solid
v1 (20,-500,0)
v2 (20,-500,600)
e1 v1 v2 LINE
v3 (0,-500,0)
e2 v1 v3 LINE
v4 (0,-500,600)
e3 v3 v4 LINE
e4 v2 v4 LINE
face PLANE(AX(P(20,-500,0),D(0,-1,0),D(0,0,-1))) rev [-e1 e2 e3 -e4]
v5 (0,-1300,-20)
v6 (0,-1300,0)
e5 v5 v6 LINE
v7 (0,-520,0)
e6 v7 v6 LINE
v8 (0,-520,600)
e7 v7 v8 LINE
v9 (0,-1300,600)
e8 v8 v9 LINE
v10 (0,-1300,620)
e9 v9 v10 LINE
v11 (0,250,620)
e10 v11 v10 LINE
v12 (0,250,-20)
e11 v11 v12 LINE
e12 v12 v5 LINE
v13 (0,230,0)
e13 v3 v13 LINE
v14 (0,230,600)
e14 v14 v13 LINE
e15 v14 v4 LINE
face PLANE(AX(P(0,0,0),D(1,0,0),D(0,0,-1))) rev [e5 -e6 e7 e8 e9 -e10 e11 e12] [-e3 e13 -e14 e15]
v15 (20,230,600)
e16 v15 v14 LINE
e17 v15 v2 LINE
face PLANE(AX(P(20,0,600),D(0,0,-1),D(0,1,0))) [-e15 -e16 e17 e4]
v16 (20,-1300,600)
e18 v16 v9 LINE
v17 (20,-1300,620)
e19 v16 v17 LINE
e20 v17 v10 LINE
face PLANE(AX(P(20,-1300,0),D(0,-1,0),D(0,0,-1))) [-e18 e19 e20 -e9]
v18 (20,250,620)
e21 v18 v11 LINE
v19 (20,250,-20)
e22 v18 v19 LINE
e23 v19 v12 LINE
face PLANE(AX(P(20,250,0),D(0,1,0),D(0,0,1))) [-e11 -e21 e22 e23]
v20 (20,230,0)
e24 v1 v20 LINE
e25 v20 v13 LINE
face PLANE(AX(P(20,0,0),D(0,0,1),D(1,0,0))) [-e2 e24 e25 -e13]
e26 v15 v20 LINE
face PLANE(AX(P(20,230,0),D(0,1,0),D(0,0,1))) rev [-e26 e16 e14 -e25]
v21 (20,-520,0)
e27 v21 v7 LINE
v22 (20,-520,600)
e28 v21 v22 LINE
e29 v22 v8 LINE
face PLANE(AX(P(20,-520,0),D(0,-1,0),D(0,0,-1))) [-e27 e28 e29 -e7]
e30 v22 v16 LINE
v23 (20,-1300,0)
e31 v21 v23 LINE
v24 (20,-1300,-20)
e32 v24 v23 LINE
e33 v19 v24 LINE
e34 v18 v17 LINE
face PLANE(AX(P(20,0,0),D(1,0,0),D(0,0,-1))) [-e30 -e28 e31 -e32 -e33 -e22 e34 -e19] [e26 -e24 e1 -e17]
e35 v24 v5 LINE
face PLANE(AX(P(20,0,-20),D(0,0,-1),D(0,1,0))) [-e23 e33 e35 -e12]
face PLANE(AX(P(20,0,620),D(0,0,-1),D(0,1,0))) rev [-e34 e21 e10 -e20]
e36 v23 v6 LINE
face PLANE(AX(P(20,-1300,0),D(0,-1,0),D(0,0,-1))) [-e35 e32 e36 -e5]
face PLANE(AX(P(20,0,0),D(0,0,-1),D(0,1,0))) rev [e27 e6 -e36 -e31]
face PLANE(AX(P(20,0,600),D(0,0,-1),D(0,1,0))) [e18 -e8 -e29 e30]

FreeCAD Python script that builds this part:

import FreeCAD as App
import Part
import Sketcher

V = App.Vector


def add_polygon(sketch, points):
    """Adds a closed chain of lines whose ends are joined by coincident constraints."""
    first, n = sketch.GeometryCount, len(points)
    for a, b in zip(points, points[1:] + points[:1]):
        sketch.addGeometry(Part.LineSegment(App.Vector(*a, 0), App.Vector(*b, 0)), False)
    for i in range(n):
        sketch.addConstraint(Sketcher.Constraint("Coincident", first + i, 2, first + (i + 1) % n, 1))

doc = App.newDocument("Part")
params = doc.addObject("Spreadsheet::Sheet", "Params")
for row, (alias, value) in enumerate([
    ("sketch1_width", "780 mm"),
    ("sketch1_width2", "1550 mm"),
    ("sketch1_width3", "730 mm"),
    ("sketch1_height", "600 mm"),
    ("sketch1_height2", "20 mm"),
    ("pad1_length", "20 mm"),
], start=1):
    params.set(f"A{row}", alias)
    params.set(f"B{row}", "=" + value)
    params.setAlias(f"B{row}", alias)

body = doc.addObject("PartDesign::Body", "Body")

# Sketch on YZ plane
sketch1 = body.newObject("Sketcher::SketchObject", "Sketch")
sketch1.AttachmentSupport = (doc.getObject("YZ_Plane"), [""])
sketch1.MapMode = "FlatFace"
add_polygon(sketch1, [(-520, 600), (-520, 0), (-1300, 0), (-1300, -20), (250, -20), (250, 620), (-1300, 620), (-1300, 600)])  # lines 0-7
add_polygon(sketch1, [(230, 600), (230, 0), (-500, 0), (-500, 600)])  # lines 8-11
sketch1.addConstraint([
    Sketcher.Constraint("Vertical", 0),
    Sketcher.Constraint("Horizontal", 1),
    Sketcher.Constraint("Vertical", 2),
    Sketcher.Constraint("Horizontal", 3),
    Sketcher.Constraint("Vertical", 4),
    Sketcher.Constraint("Horizontal", 5),
    Sketcher.Constraint("Vertical", 6),
    Sketcher.Constraint("Horizontal", 7),
    Sketcher.Constraint("Vertical", 8),
    Sketcher.Constraint("Horizontal", 9),
    Sketcher.Constraint("Vertical", 10),
    Sketcher.Constraint("Horizontal", 11),
    Sketcher.Constraint("PointOnObject", 0, 2, -1),
    Sketcher.Constraint("PointOnObject", 8, 2, -1),
    Sketcher.Constraint("Horizontal", 7, 2, 10, 2),
    Sketcher.Constraint("Vertical", 2, 2, 5, 2),
    Sketcher.Constraint("Equal", 2, 6),
    Sketcher.Constraint("DistanceX", 1, 2, 1, 1, 780.0),
    Sketcher.Constraint("DistanceX", 3, 1, 3, 2, 1550.0),
    Sketcher.Constraint("DistanceX", 9, 2, 9, 1, 730.0),
    Sketcher.Constraint("DistanceY", 0, 2, 0, 1, 600.0),
    Sketcher.Constraint("DistanceY", 2, 2, 2, 1, 20.0),
    Sketcher.Constraint("DistanceX", 0, 2, -1, 1, 520.0),
    Sketcher.Constraint("DistanceX", -1, 1, 8, 2, 230.0),
])
sketch1.setExpression("Constraints[29]", "Params.sketch1_width")
sketch1.setExpression("Constraints[30]", "Params.sketch1_width2")
sketch1.setExpression("Constraints[31]", "Params.sketch1_width3")
sketch1.setExpression("Constraints[32]", "Params.sketch1_height")
sketch1.setExpression("Constraints[33]", "Params.sketch1_height2")
pad1 = body.newObject("PartDesign::Pad", "Pad")
pad1.Profile = sketch1
pad1.setExpression("Length", "Params.pad1_length")

doc.recompute()
